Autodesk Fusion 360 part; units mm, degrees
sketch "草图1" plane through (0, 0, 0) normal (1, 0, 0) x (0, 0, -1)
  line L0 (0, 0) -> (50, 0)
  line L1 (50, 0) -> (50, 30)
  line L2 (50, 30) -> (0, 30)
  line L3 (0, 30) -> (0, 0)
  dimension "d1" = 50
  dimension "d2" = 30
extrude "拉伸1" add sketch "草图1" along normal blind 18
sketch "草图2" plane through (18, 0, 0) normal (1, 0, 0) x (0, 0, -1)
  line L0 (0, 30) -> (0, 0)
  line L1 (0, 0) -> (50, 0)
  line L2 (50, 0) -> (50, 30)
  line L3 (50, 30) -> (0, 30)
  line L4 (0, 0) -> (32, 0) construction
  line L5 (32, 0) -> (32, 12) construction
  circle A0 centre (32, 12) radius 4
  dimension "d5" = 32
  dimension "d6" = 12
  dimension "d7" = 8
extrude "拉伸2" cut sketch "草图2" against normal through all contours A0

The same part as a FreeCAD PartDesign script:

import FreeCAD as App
import Part
import Sketcher
from FreeCAD import Vector

doc = App.newDocument("Part")
body = doc.addObject("PartDesign::Body", "Body")

sketch1 = body.newObject("Sketcher::SketchObject", "Sketch")
sketch1.AttachmentSupport = (doc.getObject("YZ_Plane"), [""])
sketch1.MapMode = "FlatFace"
sketch1.addGeometry([
    Part.LineSegment(Vector(30, 0, 0), Vector(0, 0, 0)),
    Part.LineSegment(Vector(0, 0, 0), Vector(0, -50, 0)),
    Part.LineSegment(Vector(0, -50, 0), Vector(30, -50, 0)),
    Part.LineSegment(Vector(30, -50, 0), Vector(30, 0, 0)),
], False)
sketch1.addConstraint([
    Sketcher.Constraint("Coincident", 0, 2, 1, 1),
    Sketcher.Constraint("Coincident", 1, 2, 2, 1),
    Sketcher.Constraint("Coincident", 2, 2, 3, 1),
    Sketcher.Constraint("Coincident", 3, 2, 0, 1),
    Sketcher.Constraint("Horizontal", 0),
    Sketcher.Constraint("Vertical", 1),
    Sketcher.Constraint("Horizontal", 2),
    Sketcher.Constraint("Vertical", 3),
    Sketcher.Constraint("Coincident", 0, 2, -1, 1),
    Sketcher.Constraint("DistanceX", 0, 2, 0, 1, 30.0),
    Sketcher.Constraint("DistanceY", 1, 2, 1, 1, 50.0),
])
pad1 = body.newObject("PartDesign::Pad", "Pad")
pad1.Profile = sketch1
pad1.Length = 18

sketch2 = body.newObject("Sketcher::SketchObject", "Sketch001")
sketch2.AttachmentSupport = (doc.getObject("YZ_Plane"), [""])
sketch2.MapMode = "FlatFace"
sketch2.AttachmentOffset = App.Placement(Vector(0, 0, 18), App.Rotation())
sketch2.addGeometry(Part.Circle(Vector(12, -32, 0), Vector(0, 0, 1), 4), False)
sketch2.addConstraint([
    Sketcher.Constraint("Diameter", 0, 8.0),
    Sketcher.Constraint("DistanceX", -1, 1, 0, 3, 12.0),
    Sketcher.Constraint("DistanceY", 0, 3, -1, 1, 32.0),
])
pocket1 = body.newObject("PartDesign::Pocket", "Pocket")
pocket1.Profile = sketch2
pocket1.Type = "ThroughAll"

doc.recompute()
